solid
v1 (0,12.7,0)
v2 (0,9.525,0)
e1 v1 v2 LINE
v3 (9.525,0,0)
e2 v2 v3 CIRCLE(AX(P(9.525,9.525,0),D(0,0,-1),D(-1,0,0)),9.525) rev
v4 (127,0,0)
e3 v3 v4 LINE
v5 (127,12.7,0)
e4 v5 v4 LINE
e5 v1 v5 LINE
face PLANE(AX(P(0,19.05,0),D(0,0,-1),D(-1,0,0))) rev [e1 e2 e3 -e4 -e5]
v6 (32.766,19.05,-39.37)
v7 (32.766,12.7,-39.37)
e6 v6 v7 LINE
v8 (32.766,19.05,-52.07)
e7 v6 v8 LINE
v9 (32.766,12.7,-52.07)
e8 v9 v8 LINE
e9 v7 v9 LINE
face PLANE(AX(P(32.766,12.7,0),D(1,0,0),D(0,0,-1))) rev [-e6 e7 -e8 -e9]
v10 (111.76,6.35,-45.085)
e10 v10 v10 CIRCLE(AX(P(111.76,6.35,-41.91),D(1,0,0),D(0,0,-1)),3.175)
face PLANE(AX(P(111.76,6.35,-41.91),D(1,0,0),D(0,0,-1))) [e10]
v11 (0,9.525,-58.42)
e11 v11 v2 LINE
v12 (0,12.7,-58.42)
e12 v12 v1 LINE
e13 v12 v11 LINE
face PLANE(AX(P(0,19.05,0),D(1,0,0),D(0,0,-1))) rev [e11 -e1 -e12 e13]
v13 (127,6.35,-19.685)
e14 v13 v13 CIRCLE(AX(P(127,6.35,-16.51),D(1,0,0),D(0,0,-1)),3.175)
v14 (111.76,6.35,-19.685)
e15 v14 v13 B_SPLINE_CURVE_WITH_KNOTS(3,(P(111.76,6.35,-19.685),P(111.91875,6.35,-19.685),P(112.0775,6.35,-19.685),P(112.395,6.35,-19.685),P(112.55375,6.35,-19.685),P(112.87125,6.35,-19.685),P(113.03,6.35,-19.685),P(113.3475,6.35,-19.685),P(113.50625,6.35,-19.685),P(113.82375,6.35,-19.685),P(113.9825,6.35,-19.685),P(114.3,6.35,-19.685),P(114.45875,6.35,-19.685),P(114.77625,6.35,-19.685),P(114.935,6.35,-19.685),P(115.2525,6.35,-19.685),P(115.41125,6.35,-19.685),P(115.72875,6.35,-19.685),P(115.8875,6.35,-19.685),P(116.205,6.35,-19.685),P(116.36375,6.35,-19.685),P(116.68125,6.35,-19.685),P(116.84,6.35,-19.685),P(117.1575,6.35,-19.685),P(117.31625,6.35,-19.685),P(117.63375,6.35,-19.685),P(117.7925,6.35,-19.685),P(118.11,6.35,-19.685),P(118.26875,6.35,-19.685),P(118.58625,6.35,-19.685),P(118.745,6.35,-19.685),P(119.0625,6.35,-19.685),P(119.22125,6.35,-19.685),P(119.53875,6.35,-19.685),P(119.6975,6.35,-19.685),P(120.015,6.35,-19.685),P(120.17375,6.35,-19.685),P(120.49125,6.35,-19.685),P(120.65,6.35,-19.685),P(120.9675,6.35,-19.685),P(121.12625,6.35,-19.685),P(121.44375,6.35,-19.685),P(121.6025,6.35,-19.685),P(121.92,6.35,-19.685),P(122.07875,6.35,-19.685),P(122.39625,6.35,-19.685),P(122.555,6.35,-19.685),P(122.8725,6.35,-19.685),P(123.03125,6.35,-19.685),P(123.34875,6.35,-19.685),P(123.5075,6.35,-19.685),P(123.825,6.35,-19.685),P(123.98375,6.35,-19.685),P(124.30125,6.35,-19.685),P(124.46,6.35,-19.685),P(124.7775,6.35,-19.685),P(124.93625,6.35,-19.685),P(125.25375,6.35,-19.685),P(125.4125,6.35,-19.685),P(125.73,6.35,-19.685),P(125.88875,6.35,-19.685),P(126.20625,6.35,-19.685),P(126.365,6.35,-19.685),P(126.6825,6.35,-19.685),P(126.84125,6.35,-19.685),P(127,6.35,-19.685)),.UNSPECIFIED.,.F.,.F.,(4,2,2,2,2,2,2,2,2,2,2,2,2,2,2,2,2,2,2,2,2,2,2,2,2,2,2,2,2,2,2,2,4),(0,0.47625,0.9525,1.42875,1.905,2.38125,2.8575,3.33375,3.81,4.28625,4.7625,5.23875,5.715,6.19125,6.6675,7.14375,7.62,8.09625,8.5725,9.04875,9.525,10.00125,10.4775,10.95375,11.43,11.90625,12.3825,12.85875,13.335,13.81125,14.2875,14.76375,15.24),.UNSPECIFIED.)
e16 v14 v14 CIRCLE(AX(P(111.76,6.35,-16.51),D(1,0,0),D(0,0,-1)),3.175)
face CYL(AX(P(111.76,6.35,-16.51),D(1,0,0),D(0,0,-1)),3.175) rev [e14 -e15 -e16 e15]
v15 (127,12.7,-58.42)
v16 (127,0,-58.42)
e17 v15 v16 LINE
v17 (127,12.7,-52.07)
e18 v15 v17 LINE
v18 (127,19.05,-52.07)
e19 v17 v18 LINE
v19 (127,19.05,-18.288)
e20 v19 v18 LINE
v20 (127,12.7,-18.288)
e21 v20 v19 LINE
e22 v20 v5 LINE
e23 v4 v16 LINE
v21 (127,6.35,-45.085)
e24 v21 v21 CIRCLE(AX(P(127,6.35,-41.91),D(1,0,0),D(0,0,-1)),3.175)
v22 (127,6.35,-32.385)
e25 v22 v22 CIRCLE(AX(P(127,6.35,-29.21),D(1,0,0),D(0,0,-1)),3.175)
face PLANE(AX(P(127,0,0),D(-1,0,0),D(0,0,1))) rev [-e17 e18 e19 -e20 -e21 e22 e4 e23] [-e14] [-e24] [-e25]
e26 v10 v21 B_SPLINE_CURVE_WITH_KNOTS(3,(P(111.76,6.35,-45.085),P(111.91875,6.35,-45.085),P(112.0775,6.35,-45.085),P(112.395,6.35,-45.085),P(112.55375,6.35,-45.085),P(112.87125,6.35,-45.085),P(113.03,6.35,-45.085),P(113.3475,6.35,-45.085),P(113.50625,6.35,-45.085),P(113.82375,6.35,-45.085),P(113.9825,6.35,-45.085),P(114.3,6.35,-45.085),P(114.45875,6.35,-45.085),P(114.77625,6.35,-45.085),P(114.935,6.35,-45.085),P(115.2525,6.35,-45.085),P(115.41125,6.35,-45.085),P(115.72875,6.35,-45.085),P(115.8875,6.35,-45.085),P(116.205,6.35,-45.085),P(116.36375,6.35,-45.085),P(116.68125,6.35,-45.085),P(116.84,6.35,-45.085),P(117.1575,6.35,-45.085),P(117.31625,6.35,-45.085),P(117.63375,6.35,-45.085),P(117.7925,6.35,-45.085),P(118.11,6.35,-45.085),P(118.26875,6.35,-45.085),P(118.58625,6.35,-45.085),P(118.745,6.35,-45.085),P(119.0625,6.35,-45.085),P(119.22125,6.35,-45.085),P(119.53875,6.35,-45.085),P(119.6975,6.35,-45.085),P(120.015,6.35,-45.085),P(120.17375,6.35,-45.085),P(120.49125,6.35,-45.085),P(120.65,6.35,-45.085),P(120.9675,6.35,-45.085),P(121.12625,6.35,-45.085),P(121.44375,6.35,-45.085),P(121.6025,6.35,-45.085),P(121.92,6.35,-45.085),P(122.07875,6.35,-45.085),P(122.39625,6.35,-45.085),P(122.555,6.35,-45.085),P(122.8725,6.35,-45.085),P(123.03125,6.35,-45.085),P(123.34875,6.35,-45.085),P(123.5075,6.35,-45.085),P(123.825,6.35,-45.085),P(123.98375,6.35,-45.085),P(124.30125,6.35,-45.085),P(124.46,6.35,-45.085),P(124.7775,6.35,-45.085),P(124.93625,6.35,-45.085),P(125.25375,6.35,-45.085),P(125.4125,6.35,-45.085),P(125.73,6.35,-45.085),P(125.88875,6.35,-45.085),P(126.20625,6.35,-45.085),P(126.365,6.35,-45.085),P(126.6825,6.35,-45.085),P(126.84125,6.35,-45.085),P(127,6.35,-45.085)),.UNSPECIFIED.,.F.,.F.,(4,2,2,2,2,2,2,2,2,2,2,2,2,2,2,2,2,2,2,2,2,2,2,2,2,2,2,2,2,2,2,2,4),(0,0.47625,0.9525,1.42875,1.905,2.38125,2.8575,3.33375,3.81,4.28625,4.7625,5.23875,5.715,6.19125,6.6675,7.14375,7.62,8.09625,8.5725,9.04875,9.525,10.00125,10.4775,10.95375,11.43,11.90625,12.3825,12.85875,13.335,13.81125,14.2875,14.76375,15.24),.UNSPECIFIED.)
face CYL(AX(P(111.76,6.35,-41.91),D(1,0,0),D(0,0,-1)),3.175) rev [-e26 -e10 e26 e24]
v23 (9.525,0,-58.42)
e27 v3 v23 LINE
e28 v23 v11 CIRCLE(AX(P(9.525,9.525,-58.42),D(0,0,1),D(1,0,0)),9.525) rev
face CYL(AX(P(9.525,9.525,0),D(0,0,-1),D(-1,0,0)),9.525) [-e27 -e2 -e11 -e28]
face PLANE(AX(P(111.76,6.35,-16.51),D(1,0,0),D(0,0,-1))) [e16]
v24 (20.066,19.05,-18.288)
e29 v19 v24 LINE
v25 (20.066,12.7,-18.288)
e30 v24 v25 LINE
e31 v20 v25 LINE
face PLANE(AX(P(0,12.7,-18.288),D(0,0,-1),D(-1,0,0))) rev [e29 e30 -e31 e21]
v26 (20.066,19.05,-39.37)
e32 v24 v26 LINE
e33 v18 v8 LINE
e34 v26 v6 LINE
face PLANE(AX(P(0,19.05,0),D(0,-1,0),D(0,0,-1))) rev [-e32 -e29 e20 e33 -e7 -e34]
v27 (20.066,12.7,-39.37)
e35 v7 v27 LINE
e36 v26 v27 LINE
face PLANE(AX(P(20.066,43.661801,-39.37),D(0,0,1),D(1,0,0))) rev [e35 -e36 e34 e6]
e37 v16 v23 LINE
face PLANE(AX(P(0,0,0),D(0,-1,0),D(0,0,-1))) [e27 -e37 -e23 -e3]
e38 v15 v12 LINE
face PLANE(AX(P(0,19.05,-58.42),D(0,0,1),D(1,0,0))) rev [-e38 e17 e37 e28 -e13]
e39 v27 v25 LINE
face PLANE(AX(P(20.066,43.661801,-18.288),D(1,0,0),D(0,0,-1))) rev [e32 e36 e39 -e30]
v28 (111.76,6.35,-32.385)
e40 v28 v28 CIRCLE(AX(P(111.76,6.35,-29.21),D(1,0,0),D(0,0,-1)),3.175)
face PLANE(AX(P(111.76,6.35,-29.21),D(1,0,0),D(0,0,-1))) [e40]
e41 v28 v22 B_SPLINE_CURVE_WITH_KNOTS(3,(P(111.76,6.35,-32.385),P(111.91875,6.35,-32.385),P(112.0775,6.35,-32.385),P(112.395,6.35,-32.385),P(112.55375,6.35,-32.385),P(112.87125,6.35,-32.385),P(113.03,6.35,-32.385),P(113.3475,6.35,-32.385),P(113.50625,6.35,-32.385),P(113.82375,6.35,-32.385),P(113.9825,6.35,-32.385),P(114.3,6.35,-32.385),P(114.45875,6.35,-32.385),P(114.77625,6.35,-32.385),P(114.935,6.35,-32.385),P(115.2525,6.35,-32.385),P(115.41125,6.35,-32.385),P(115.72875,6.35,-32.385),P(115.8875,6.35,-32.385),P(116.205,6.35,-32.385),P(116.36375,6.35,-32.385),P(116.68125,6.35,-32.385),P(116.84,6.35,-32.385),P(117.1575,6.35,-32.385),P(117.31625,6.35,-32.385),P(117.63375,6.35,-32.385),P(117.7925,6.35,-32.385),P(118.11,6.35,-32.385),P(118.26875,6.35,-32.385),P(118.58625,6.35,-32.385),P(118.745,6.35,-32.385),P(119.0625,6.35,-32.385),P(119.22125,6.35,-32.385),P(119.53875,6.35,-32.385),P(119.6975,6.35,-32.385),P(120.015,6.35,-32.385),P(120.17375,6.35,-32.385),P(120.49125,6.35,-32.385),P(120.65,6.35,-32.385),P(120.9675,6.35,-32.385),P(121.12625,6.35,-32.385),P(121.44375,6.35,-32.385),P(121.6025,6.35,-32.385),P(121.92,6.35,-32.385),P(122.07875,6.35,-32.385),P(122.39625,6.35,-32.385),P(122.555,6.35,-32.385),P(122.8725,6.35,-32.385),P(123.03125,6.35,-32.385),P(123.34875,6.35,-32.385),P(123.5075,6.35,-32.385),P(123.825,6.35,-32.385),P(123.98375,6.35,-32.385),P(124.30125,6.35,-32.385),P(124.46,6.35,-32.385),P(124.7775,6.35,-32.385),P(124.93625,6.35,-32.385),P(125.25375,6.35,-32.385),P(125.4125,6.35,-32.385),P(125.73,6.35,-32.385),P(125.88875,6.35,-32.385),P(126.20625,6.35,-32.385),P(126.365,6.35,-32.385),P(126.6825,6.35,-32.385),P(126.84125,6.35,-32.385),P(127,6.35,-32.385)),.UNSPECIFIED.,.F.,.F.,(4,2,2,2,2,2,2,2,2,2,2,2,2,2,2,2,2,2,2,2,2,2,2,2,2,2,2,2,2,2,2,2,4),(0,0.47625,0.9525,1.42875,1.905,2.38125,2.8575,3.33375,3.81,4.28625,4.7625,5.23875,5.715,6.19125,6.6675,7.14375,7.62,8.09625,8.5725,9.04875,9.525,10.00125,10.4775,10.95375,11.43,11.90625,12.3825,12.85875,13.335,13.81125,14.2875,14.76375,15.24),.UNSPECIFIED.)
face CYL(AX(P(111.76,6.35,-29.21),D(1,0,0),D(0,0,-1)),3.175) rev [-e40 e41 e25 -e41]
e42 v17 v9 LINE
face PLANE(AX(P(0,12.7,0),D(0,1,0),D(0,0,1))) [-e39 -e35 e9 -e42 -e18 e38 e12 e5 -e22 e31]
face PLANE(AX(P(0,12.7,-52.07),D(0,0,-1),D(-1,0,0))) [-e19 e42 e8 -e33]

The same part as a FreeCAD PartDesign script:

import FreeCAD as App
import Part
import Sketcher
from FreeCAD import Vector
Q = App.Units.Quantity


def edges_at(feature, points):
    """Names of the edges that pass closest to the given points."""
    edges = feature.Shape.Edges
    near = lambda p: min(range(len(edges)), key=lambda i: edges[i].distToShape(Part.Vertex(*p))[0])
    return sorted({f"Edge{near(p) + 1}" for p in points})

doc = App.newDocument("Part")
body = doc.addObject("PartDesign::Body", "Body")

# Sketch on XZ plane
sketch1 = doc.addObject("Sketcher::SketchObject", "Sketch")
body.addObject(sketch1)
sketch1.AttachmentSupport = (doc.XZ_Plane, [""])
sketch1.MapMode = "FlatFace"
sketch1.addGeometry(Part.LineSegment(Vector(0, -58, 0), Vector(0, 0, 0)), False)
sketch1.addGeometry(Part.LineSegment(Vector(0, 0, 0), Vector(254, 0, 0)), False)
sketch1.addGeometry(Part.LineSegment(Vector(254, 0, 0), Vector(254, -58, 0)), False)
sketch1.addGeometry(Part.LineSegment(Vector(254, -58, 0), Vector(0, -58, 0)), False)
sketch1.addConstraint(Sketcher.Constraint("Coincident", 0, 2, 1, 1))
sketch1.addConstraint(Sketcher.Constraint("Coincident", 1, 2, 2, 1))
sketch1.addConstraint(Sketcher.Constraint("Coincident", 2, 2, 3, 1))
sketch1.addConstraint(Sketcher.Constraint("Coincident", 3, 2, 0, 1))
sketch1.addConstraint(Sketcher.Constraint("Vertical", 0))
sketch1.addConstraint(Sketcher.Constraint("Horizontal", 1))
sketch1.addConstraint(Sketcher.Constraint("Vertical", 2))
sketch1.addConstraint(Sketcher.Constraint("Horizontal", 3))
sketch1.addConstraint(Sketcher.Constraint("Coincident", 0, 2, -1, 1))
sketch1.addConstraint(Sketcher.Constraint("DistanceX", 1, 1, 1, 2, Q("10 in")))
sketch1.addConstraint(Sketcher.Constraint("DistanceY", 0, 1, 0, 2, Q("2.3 in")))
pad1 = doc.addObject("PartDesign::Pad", "Pad")
body.addObject(pad1)
pad1.Profile = sketch1
pad1.Length = Q("0.75 in")
pad1.Reversed = True

# Sketch on XZ plane
sketch2 = doc.addObject("Sketcher::SketchObject", "Sketch001")
body.addObject(sketch2)
sketch2.AttachmentSupport = (doc.XZ_Plane, [""])
sketch2.MapMode = "FlatFace"
sketch2.AttachmentOffset = App.Placement(Vector(0, 0, -0.75 * 25.4), App.Rotation())
sketch2.addGeometry(Part.LineSegment(Vector(254, 0, 0), Vector(254, -58, 0)), False)
sketch2.addGeometry(Part.LineSegment(Vector(254, -58, 0), Vector(0, -58, 0)), False)
sketch2.addGeometry(Part.LineSegment(Vector(0, -58, 0), Vector(0, 0, 0)), False)
sketch2.addGeometry(Part.LineSegment(Vector(0, 0, 0), Vector(254, 0, 0)), False)
sketch2.addGeometry(Part.LineSegment(Vector(221, -52, 0), Vector(221, -18, 0)), False)
sketch2.addGeometry(Part.LineSegment(Vector(221, -18, 0), Vector(33, -18, 0)), False)
sketch2.addGeometry(Part.LineSegment(Vector(33, -18, 0), Vector(33, -52, 0)), False)
sketch2.addGeometry(Part.LineSegment(Vector(33, -52, 0), Vector(221, -52, 0)), False)
sketch2.addConstraint(Sketcher.Constraint("Coincident", 0, 2, 1, 1))
sketch2.addConstraint(Sketcher.Constraint("Coincident", 1, 2, 2, 1))
sketch2.addConstraint(Sketcher.Constraint("Coincident", 2, 2, 3, 1))
sketch2.addConstraint(Sketcher.Constraint("Coincident", 3, 2, 0, 1))
sketch2.addConstraint(Sketcher.Constraint("Coincident", 4, 2, 5, 1))
sketch2.addConstraint(Sketcher.Constraint("Coincident", 5, 2, 6, 1))
sketch2.addConstraint(Sketcher.Constraint("Coincident", 6, 2, 7, 1))
sketch2.addConstraint(Sketcher.Constraint("Coincident", 7, 2, 4, 1))
sketch2.addConstraint(Sketcher.Constraint("Vertical", 0))
sketch2.addConstraint(Sketcher.Constraint("Horizontal", 1))
sketch2.addConstraint(Sketcher.Constraint("Vertical", 2))
sketch2.addConstraint(Sketcher.Constraint("Horizontal", 3))
sketch2.addConstraint(Sketcher.Constraint("Vertical", 4))
sketch2.addConstraint(Sketcher.Constraint("Horizontal", 5))
sketch2.addConstraint(Sketcher.Constraint("Vertical", 6))
sketch2.addConstraint(Sketcher.Constraint("Horizontal", 7))
sketch2.addConstraint(Sketcher.Constraint("Coincident", 2, 2, -1, 1))
sketch2.addConstraint(Sketcher.Constraint("DistanceX", 1, 2, 1, 1, Q("10 in")))
sketch2.addConstraint(Sketcher.Constraint("DistanceY", 0, 2, 0, 1, Q("2.3 in")))
sketch2.addConstraint(Sketcher.Constraint("DistanceX", 5, 2, 5, 1, Q("7.42 in")))
sketch2.addConstraint(Sketcher.Constraint("DistanceY", 4, 1, 4, 2, Q("1.33 in")))
sketch2.addConstraint(Sketcher.Constraint("DistanceX", -1, 1, 4, 2, Q("8.71 in")))
sketch2.addConstraint(Sketcher.Constraint("DistanceY", 4, 2, -1, 1, Q("0.72 in")))
pocket1 = doc.addObject("PartDesign::Pocket", "Pocket")
body.addObject(pocket1)
pocket1.Profile = sketch2
pocket1.Length = Q("0.25 in")
pocket1.Reversed = True
doc.recompute()

fillet = doc.addObject("PartDesign::Fillet", "Fillet")
body.addObject(fillet)
fillet.Base = (pocket1, edges_at(pocket1, [(254, 0, -29.21), (0, 0, -29.21)]))
fillet.Radius = Q("0.375 in")

# Sketch on YZ plane
sketch3 = doc.addObject("Sketcher::SketchObject", "Sketch002")
body.addObject(sketch3)
sketch3.AttachmentSupport = (doc.YZ_Plane, [""])
sketch3.MapMode = "FlatFace"
sketch3.AttachmentOffset = App.Placement(Vector(0, 0, 5 * 25.4), App.Rotation())
sketch3.addGeometry(Part.LineSegment(Vector(24, 0, 0), Vector(0, 0, 0)), False)
sketch3.addGeometry(Part.LineSegment(Vector(0, 0, 0), Vector(0, -63, 0)), False)
sketch3.addGeometry(Part.LineSegment(Vector(0, -63, 0), Vector(24, -63, 0)), False)
sketch3.addGeometry(Part.LineSegment(Vector(24, -63, 0), Vector(24, 0, 0)), False)
sketch3.addConstraint(Sketcher.Constraint("Coincident", 0, 2, 1, 1))
sketch3.addConstraint(Sketcher.Constraint("Coincident", 1, 2, 2, 1))
sketch3.addConstraint(Sketcher.Constraint("Coincident", 2, 2, 3, 1))
sketch3.addConstraint(Sketcher.Constraint("Coincident", 3, 2, 0, 1))
sketch3.addConstraint(Sketcher.Constraint("Horizontal", 0))
sketch3.addConstraint(Sketcher.Constraint("Vertical", 1))
sketch3.addConstraint(Sketcher.Constraint("Horizontal", 2))
sketch3.addConstraint(Sketcher.Constraint("Vertical", 3))
sketch3.addConstraint(Sketcher.Constraint("Coincident", 0, 2, -1, 1))
sketch3.addConstraint(Sketcher.Constraint("DistanceY", 1, 2, 1, 1, 63.359739))
sketch3.addConstraint(Sketcher.Constraint("DistanceX", 0, 2, 0, 1, 23.579054))
pocket2 = doc.addObject("PartDesign::Pocket", "Pocket001")
body.addObject(pocket2)
pocket2.Profile = sketch3
pocket2.Length = Q("5 in")
pocket2.Reversed = True

# Sketch on YZ plane
sketch4 = doc.addObject("Sketcher::SketchObject", "Sketch003")
body.addObject(sketch4)
sketch4.AttachmentSupport = (doc.YZ_Plane, [""])
sketch4.MapMode = "FlatFace"
sketch4.AttachmentOffset = App.Placement(Vector(0, 0, 5 * 25.4), App.Rotation())
sketch4.addGeometry(Part.Circle(Vector(6.3, -16.5, 0), Vector(0, 0, 1), 3.2), False)
sketch4.addGeometry(Part.Circle(Vector(6.3, -29.2, 0), Vector(0, 0, 1), 3.2), False)
sketch4.addGeometry(Part.Circle(Vector(6.3, -41.9, 0), Vector(0, 0, 1), 3.2), False)
sketch4.addConstraint(Sketcher.Constraint("Equal", 0, 1))
sketch4.addConstraint(Sketcher.Constraint("Equal", 1, 2))
sketch4.addConstraint(Sketcher.Constraint("Vertical", 0, 3, 1, 3))
sketch4.addConstraint(Sketcher.Constraint("Vertical", 1, 3, 2, 3))
sketch4.addConstraint(Sketcher.Constraint("Diameter", 0, Q("0.25 in")))
sketch4.addConstraint(Sketcher.Constraint("DistanceY", 2, 3, 0, 3, Q("1 in")))
sketch4.addConstraint(Sketcher.Constraint("DistanceY", 1, 3, 0, 3, Q("0.5 in")))
sketch4.addConstraint(Sketcher.Constraint("DistanceX", -1, 1, 0, 3, Q("0.25 in")))
sketch4.addConstraint(Sketcher.Constraint("DistanceY", 0, 3, -1, 1, Q("0.65 in")))
pocket3 = doc.addObject("PartDesign::Pocket", "Pocket002")
body.addObject(pocket3)
pocket3.Profile = sketch4
pocket3.Length = Q("0.6 in")

# Sketch on XZ plane
sketch5 = doc.addObject("Sketcher::SketchObject", "Sketch004")
body.addObject(sketch5)
sketch5.AttachmentSupport = (doc.XZ_Plane, [""])
sketch5.MapMode = "FlatFace"
sketch5.AttachmentOffset = App.Placement(Vector(0, 0, -0.5 * 25.4), App.Rotation())
sketch5.addGeometry(Part.LineSegment(Vector(20, -39, 0), Vector(20, -18, 0)), False)
sketch5.addGeometry(Part.LineSegment(Vector(20, -18, 0), Vector(33, -18, 0)), False)
sketch5.addGeometry(Part.LineSegment(Vector(33, -18, 0), Vector(33, -39, 0)), False)
sketch5.addGeometry(Part.LineSegment(Vector(33, -39, 0), Vector(20, -39, 0)), False)
sketch5.addConstraint(Sketcher.Constraint("Coincident", 0, 2, 1, 1))
sketch5.addConstraint(Sketcher.Constraint("Coincident", 1, 2, 2, 1))
sketch5.addConstraint(Sketcher.Constraint("Coincident", 2, 2, 3, 1))
sketch5.addConstraint(Sketcher.Constraint("Coincident", 3, 2, 0, 1))
sketch5.addConstraint(Sketcher.Constraint("Vertical", 0))
sketch5.addConstraint(Sketcher.Constraint("Horizontal", 1))
sketch5.addConstraint(Sketcher.Constraint("Vertical", 2))
sketch5.addConstraint(Sketcher.Constraint("Horizontal", 3))
sketch5.addConstraint(Sketcher.Constraint("DistanceX", 1, 1, 1, 2, Q("0.5 in")))
sketch5.addConstraint(Sketcher.Constraint("DistanceY", 0, 1, 0, 2, Q("0.83 in")))
sketch5.addConstraint(Sketcher.Constraint("DistanceX", -1, 1, 0, 2, Q("0.79 in")))
sketch5.addConstraint(Sketcher.Constraint("DistanceY", 0, 2, -1, 1, Q("0.72 in")))
pad2 = doc.addObject("PartDesign::Pad", "Pad001")
body.addObject(pad2)
pad2.Profile = sketch5
pad2.Length = Q("0.25 in")
pad2.Reversed = True

doc.recompute()
